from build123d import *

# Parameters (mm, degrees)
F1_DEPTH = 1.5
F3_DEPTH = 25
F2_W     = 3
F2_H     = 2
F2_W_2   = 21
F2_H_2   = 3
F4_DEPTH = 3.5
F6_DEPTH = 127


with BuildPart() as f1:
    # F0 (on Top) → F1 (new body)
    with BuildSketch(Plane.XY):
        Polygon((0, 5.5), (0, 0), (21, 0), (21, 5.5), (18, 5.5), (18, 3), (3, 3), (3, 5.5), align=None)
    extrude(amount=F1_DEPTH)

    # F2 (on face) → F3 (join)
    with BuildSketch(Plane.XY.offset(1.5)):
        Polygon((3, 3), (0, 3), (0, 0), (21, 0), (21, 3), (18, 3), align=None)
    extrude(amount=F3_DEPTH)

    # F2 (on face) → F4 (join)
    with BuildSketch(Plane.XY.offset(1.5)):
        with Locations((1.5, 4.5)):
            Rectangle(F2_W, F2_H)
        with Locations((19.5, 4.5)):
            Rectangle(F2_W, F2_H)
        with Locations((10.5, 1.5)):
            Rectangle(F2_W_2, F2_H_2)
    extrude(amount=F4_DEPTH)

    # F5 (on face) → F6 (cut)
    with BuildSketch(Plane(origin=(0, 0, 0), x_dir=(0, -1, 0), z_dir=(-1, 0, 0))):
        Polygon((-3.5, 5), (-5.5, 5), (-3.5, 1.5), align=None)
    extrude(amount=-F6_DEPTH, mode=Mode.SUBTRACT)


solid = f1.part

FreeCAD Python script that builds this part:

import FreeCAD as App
import Part
import Sketcher

V = App.Vector
Q = App.Units.Quantity


def add_polygon(sketch, points):
    """Adds a closed chain of lines whose ends are joined by coincident constraints."""
    first, n = sketch.GeometryCount, len(points)
    for a, b in zip(points, points[1:] + points[:1]):
        sketch.addGeometry(Part.LineSegment(App.Vector(*a, 0), App.Vector(*b, 0)), False)
    for i in range(n):
        sketch.addConstraint(Sketcher.Constraint("Coincident", first + i, 2, first + (i + 1) % n, 1))

doc = App.newDocument("Part")
body = doc.addObject("PartDesign::Body", "Body")

sketch1 = body.newObject("Sketcher::SketchObject", "Sketch")
sketch1.AttachmentSupport = (doc.getObject("XY_Plane"), [""])
sketch1.MapMode = "FlatFace"
add_polygon(sketch1, [(0, 5.5), (0, 0), (21, 0), (21, 5.5), (18, 5.5), (18, 3), (3, 3), (3, 5.5)])
sketch1.addConstraint([
    Sketcher.Constraint("Vertical", 0),
    Sketcher.Constraint("Horizontal", 1),
    Sketcher.Constraint("Vertical", 2),
    Sketcher.Constraint("Horizontal", 3),
    Sketcher.Constraint("Vertical", 4),
    Sketcher.Constraint("Horizontal", 5),
    Sketcher.Constraint("Vertical", 6),
    Sketcher.Constraint("Horizontal", 7),
    Sketcher.Constraint("Coincident", 0, 2, -1, 1),
    Sketcher.Constraint("Horizontal", 3, 2, 6, 2),
    Sketcher.Constraint("Equal", 3, 7),
    Sketcher.Constraint("DistanceX", 1, 1, 1, 2, Q("21 mm")),
    Sketcher.Constraint("DistanceX", 3, 2, 3, 1, Q("3 mm")),
    Sketcher.Constraint("DistanceY", 0, 2, 0, 1, Q("5.5 mm")),
    Sketcher.Constraint("DistanceY", 4, 2, 4, 1, Q("2.5 mm")),
])
pad1 = body.newObject("PartDesign::Pad", "Pad")
pad1.Profile = sketch1
pad1.Length = 1.5

sketch2 = body.newObject("Sketcher::SketchObject", "Sketch001")
sketch2.AttachmentSupport = (doc.getObject("XY_Plane"), [""])
sketch2.MapMode = "FlatFace"
sketch2.AttachmentOffset = App.Placement(V(0, 0, 1.5), App.Rotation())
add_polygon(sketch2, [(0, 3), (0, 0), (21, 0), (21, 3)])
sketch2.addConstraint([
    Sketcher.Constraint("Vertical", 0),
    Sketcher.Constraint("Horizontal", 1),
    Sketcher.Constraint("Vertical", 2),
    Sketcher.Constraint("Horizontal", 3),
    Sketcher.Constraint("Coincident", 0, 2, -1, 1),
    Sketcher.Constraint("DistanceX", 1, 1, 1, 2, Q("21 mm")),
    Sketcher.Constraint("DistanceY", 0, 2, 0, 1, Q("3 mm")),
])
pad2 = body.newObject("PartDesign::Pad", "Pad001")
pad2.Profile = sketch2
pad2.Length = 25

sketch3 = body.newObject("Sketcher::SketchObject", "Sketch002")
sketch3.AttachmentSupport = (doc.getObject("XY_Plane"), [""])
sketch3.MapMode = "FlatFace"
sketch3.AttachmentOffset = App.Placement(V(0, 0, 1.5), App.Rotation())
add_polygon(sketch3, [(0, 5.5), (0, 3.5), (3, 3.5), (3, 5.5)])
add_polygon(sketch3, [(18, 5.5), (18, 3.5), (21, 3.5), (21, 5.5)])
add_polygon(sketch3, [(0, 3), (0, 0), (21, 0), (21, 3)])
sketch3.addConstraint([
    Sketcher.Constraint("Vertical", 0),
    Sketcher.Constraint("Horizontal", 1),
    Sketcher.Constraint("Vertical", 2),
    Sketcher.Constraint("Horizontal", 3),
    Sketcher.Constraint("Vertical", 4),
    Sketcher.Constraint("Horizontal", 5),
    Sketcher.Constraint("Vertical", 6),
    Sketcher.Constraint("Horizontal", 7),
    Sketcher.Constraint("Vertical", 8),
    Sketcher.Constraint("Horizontal", 9),
    Sketcher.Constraint("Vertical", 10),
    Sketcher.Constraint("Horizontal", 11),
    Sketcher.Constraint("Coincident", 8, 2, -1, 1),
    Sketcher.Constraint("PointOnObject", 0, 2, -2),
    Sketcher.Constraint("Horizontal", 1, 2, 4, 2),
    Sketcher.Constraint("Horizontal", 3, 2, 6, 2),
    Sketcher.Constraint("Vertical", 6, 2, 9, 2),
    Sketcher.Constraint("Equal", 3, 5),
    Sketcher.Constraint("Equal", 7, 8),
    Sketcher.Constraint("DistanceX", 1, 1, 1, 2, Q("3 mm")),
    Sketcher.Constraint("DistanceX", 9, 1, 9, 2, Q("21 mm")),
    Sketcher.Constraint("DistanceY", 0, 2, 0, 1, Q("2 mm")),
    Sketcher.Constraint("DistanceY", -1, 1, 0, 2, Q("3.5 mm")),
])
pad3 = body.newObject("PartDesign::Pad", "Pad002")
pad3.Profile = sketch3
pad3.Length = 3.5

sketch4 = body.newObject("Sketcher::SketchObject", "Sketch003")
sketch4.AttachmentSupport = (doc.getObject("YZ_Plane"), [""])
sketch4.MapMode = "FlatFace"
add_polygon(sketch4, [(3.5, 5), (5.5, 5), (3.5, 1.5)])
sketch4.addConstraint([
    Sketcher.Constraint("Horizontal", 0),
    Sketcher.Constraint("Vertical", 2),
    Sketcher.Constraint("DistanceX", 0, 1, 0, 2, Q("2 mm")),
    Sketcher.Constraint("DistanceY", 2, 1, 2, 2, Q("3.5 mm")),
    Sketcher.Constraint("DistanceY", -1, 1, 0, 2, Q("5 mm")),
    Sketcher.Constraint("DistanceX", -1, 1, 0, 2, Q("5.5 mm")),
])
pocket1 = body.newObject("PartDesign::Pocket", "Pocket")
pocket1.Profile = sketch4
pocket1.Length = 127
pocket1.Reversed = True

doc.recompute()
